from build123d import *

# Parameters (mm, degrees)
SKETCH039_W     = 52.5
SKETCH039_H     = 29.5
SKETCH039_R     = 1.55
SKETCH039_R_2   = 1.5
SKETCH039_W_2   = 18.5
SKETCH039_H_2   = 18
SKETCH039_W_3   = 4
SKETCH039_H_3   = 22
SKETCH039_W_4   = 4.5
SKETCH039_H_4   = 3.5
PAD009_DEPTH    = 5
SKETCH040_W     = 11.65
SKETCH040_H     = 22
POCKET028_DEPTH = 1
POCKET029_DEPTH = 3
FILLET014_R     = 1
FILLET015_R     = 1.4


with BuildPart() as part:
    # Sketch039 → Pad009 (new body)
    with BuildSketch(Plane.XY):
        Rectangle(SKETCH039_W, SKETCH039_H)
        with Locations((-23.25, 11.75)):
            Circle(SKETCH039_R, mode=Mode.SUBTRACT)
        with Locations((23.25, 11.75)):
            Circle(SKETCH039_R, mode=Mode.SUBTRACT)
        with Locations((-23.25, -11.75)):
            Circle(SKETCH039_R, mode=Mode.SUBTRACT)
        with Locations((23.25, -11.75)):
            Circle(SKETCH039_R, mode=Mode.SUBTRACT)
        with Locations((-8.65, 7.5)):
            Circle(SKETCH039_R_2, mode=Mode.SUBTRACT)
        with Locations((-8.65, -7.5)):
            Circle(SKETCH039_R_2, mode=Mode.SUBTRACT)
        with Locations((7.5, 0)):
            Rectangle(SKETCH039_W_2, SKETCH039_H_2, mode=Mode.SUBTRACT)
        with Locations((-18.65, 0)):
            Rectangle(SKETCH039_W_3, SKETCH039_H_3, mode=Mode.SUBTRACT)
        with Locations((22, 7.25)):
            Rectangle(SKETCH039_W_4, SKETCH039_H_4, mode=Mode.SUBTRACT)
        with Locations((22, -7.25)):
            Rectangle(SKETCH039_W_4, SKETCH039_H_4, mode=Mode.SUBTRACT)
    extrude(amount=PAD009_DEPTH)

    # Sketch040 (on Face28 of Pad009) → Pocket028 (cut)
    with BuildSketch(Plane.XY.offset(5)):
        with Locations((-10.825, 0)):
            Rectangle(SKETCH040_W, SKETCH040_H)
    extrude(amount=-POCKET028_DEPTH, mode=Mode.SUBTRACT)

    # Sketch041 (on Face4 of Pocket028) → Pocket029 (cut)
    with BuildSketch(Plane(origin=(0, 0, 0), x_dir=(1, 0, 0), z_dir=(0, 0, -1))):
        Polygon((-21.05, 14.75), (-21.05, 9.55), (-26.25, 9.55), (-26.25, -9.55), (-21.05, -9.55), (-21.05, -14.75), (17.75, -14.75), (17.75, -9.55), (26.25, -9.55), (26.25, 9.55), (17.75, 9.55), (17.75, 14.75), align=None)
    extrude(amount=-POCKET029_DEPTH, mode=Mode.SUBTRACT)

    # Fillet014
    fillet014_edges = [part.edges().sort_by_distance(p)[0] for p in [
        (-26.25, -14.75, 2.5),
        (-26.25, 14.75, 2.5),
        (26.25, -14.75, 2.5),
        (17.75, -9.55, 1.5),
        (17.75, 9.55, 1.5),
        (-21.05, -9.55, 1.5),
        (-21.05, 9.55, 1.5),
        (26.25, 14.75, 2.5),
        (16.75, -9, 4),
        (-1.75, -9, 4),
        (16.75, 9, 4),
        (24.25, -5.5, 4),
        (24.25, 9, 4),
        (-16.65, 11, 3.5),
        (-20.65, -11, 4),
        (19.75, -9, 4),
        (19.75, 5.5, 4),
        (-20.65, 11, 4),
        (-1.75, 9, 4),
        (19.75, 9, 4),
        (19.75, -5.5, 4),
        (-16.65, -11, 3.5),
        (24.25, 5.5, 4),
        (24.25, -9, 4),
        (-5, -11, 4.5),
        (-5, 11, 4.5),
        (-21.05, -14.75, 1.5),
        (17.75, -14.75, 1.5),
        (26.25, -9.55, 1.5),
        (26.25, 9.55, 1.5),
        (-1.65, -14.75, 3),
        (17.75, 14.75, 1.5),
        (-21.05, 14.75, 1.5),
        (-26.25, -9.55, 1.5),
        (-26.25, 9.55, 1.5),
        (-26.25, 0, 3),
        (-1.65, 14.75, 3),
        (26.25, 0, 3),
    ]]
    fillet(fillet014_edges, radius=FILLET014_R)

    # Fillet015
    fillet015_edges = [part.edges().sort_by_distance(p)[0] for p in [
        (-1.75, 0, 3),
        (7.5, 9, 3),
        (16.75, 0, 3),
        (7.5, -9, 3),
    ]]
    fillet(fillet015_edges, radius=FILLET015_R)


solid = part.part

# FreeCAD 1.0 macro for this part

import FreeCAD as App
import Part
import Sketcher

V = App.Vector


def edges_at(feature, points):
    """Names of the edges that pass closest to the given points."""
    edges = feature.Shape.Edges
    near = lambda p: min(range(len(edges)), key=lambda i: edges[i].distToShape(Part.Vertex(*p))[0])
    return sorted({f"Edge{near(p) + 1}" for p in points})


def add_polygon(sketch, points):
    """Adds a closed chain of lines whose ends are joined by coincident constraints."""
    first, n = sketch.GeometryCount, len(points)
    for a, b in zip(points, points[1:] + points[:1]):
        sketch.addGeometry(Part.LineSegment(App.Vector(*a, 0), App.Vector(*b, 0)), False)
    for i in range(n):
        sketch.addConstraint(Sketcher.Constraint("Coincident", first + i, 2, first + (i + 1) % n, 1))

doc = App.newDocument("Part")
body = doc.addObject("PartDesign::Body", "Body")

# Sketch on XY plane
sketch1 = body.newObject("Sketcher::SketchObject", "Sketch")
sketch1.AttachmentSupport = (doc.getObject("XY_Plane"), [""])
sketch1.MapMode = "FlatFace"
add_polygon(sketch1, [(-26.2, 14.8), (-26.2, -14.8), (26.2, -14.8), (26.2, 14.8)])  # lines 0-3
sketch1.addGeometry(Part.Circle(V(-23.2, -11.8, 0), V(0, 0, 1), 1.6), False)  # 4
sketch1.addGeometry(Part.Circle(V(-8.7, -7.5, 0), V(0, 0, 1), 1.5), False)  # 5
sketch1.addGeometry(Part.Circle(V(23.2, -11.8, 0), V(0, 0, 1), 1.6), False)  # 6
add_polygon(sketch1, [(24.2, -9), (19.8, -9), (19.8, -5.5), (24.2, -5.5)])  # lines 7-10
add_polygon(sketch1, [(-16.6, -11), (-20.6, -11), (-20.6, 11), (-16.6, 11)])  # lines 11-14
sketch1.addGeometry(Part.Circle(V(-23.2, 11.8, 0), V(0, 0, 1), 1.6), False)  # 15
sketch1.addGeometry(Part.Circle(V(-8.7, 7.5, 0), V(0, 0, 1), 1.5), False)  # 16
add_polygon(sketch1, [(16.8, -9), (-1.8, -9), (-1.8, 9), (16.8, 9)])  # lines 17-20
add_polygon(sketch1, [(24.2, 5.5), (19.8, 5.5), (19.8, 9), (24.2, 9)])  # lines 21-24
sketch1.addGeometry(Part.Circle(V(23.2, 11.8, 0), V(0, 0, 1), 1.6), False)  # 25
sketch1.addConstraint(Sketcher.Constraint("Vertical", 0))
sketch1.addConstraint(Sketcher.Constraint("Horizontal", 1))
sketch1.addConstraint(Sketcher.Constraint("Vertical", 2))
sketch1.addConstraint(Sketcher.Constraint("Horizontal", 3))
sketch1.addConstraint(Sketcher.Constraint("Horizontal", 7))
sketch1.addConstraint(Sketcher.Constraint("Vertical", 8))
sketch1.addConstraint(Sketcher.Constraint("Horizontal", 9))
sketch1.addConstraint(Sketcher.Constraint("Vertical", 10))
sketch1.addConstraint(Sketcher.Constraint("Horizontal", 11))
sketch1.addConstraint(Sketcher.Constraint("Vertical", 12))
sketch1.addConstraint(Sketcher.Constraint("Horizontal", 13))
sketch1.addConstraint(Sketcher.Constraint("Vertical", 14))
sketch1.addConstraint(Sketcher.Constraint("Horizontal", 17))
sketch1.addConstraint(Sketcher.Constraint("Vertical", 18))
sketch1.addConstraint(Sketcher.Constraint("Horizontal", 19))
sketch1.addConstraint(Sketcher.Constraint("Vertical", 20))
sketch1.addConstraint(Sketcher.Constraint("Horizontal", 21))
sketch1.addConstraint(Sketcher.Constraint("Vertical", 22))
sketch1.addConstraint(Sketcher.Constraint("Horizontal", 23))
sketch1.addConstraint(Sketcher.Constraint("Vertical", 24))
sketch1.addConstraint(Sketcher.Constraint("Equal", 4, 6))
sketch1.addConstraint(Sketcher.Constraint("Equal", 6, 15))
sketch1.addConstraint(Sketcher.Constraint("Equal", 5, 16))
sketch1.addConstraint(Sketcher.Constraint("Equal", 15, 25))
sketch1.addConstraint(Sketcher.Constraint("Symmetric", 6, 3, 15, 3, -1, 1))
sketch1.addConstraint(Sketcher.Constraint("Symmetric", 4, 3, 25, 3, -1, 1))
sketch1.addConstraint(Sketcher.Constraint("Symmetric", 0, 2, 2, 2, -1, 1))
sketch1.addConstraint(Sketcher.Constraint("Symmetric", 4, 3, 6, 3, -2))
sketch1.addConstraint(Sketcher.Constraint("Symmetric", 5, 3, 16, 3, -1))
sketch1.addConstraint(Sketcher.Constraint("Symmetric", 8, 2, 21, 2, -1))
sketch1.addConstraint(Sketcher.Constraint("Symmetric", 10, 2, 23, 2, -1))
sketch1.addConstraint(Sketcher.Constraint("Horizontal", 10, 2, 17, 2))
sketch1.addConstraint(Sketcher.Constraint("Horizontal", 19, 2, 22, 2))
sketch1.addConstraint(Sketcher.Constraint("Diameter", 5, 3.0))
sketch1.addConstraint(Sketcher.Constraint("Diameter", 4, 3.1))
sketch1.addConstraint(Sketcher.Constraint("DistanceX", 11, 2, 11, 1, 4.0))
sketch1.addConstraint(Sketcher.Constraint("DistanceY", 12, 1, 12, 2, 22.0))
sketch1.addConstraint(Sketcher.Constraint("DistanceY", 18, 1, 18, 2, 18.0))
sketch1.addConstraint(Sketcher.Constraint("DistanceX", 1, 1, 1, 2, 52.5))
sketch1.addConstraint(Sketcher.Constraint("DistanceX", 7, 2, 7, 1, 4.5))
sketch1.addConstraint(Sketcher.Constraint("DistanceX", 17, 2, 17, 1, 18.5))
sketch1.addConstraint(Sketcher.Constraint("DistanceY", 0, 2, 0, 1, 29.5))
sketch1.addConstraint(Sketcher.Constraint("DistanceY", 8, 1, 8, 2, 3.5))
sketch1.addConstraint(Sketcher.Constraint("DistanceY", 11, 2, -1, 1, 11.0))
sketch1.addConstraint(Sketcher.Constraint("DistanceY", 5, 3, 16, 3, 15.0))
sketch1.addConstraint(Sketcher.Constraint("DistanceX", 0, 2, 4, 3, 3.0))
sketch1.addConstraint(Sketcher.Constraint("DistanceY", 0, 2, 4, 3, 3.0))
sketch1.addConstraint(Sketcher.Constraint("DistanceX", 6, 3, 9, 2, 1.0))
sketch1.addConstraint(Sketcher.Constraint("DistanceX", 11, 2, 5, 3, 12.0))
sketch1.addConstraint(Sketcher.Constraint("DistanceX", 19, 2, 8, 2, 3.0))
sketch1.addConstraint(Sketcher.Constraint("DistanceX", 4, 3, 5, 3, 14.6))
pad1 = body.newObject("PartDesign::Pad", "Pad")
pad1.Profile = sketch1
pad1.Length = 5

# Sketch on XY plane
sketch2 = body.newObject("Sketcher::SketchObject", "Sketch001")
sketch2.AttachmentSupport = (doc.getObject("XY_Plane"), [""])
sketch2.MapMode = "FlatFace"
sketch2.AttachmentOffset = App.Placement(V(0, 0, 5), App.Rotation())
add_polygon(sketch2, [(-17, 11), (-17, -11), (-5, -11), (-5, 11)])  # lines 0-3
sketch2.addConstraint(Sketcher.Constraint("Vertical", 0))
sketch2.addConstraint(Sketcher.Constraint("Horizontal", 1))
sketch2.addConstraint(Sketcher.Constraint("Vertical", 2))
sketch2.addConstraint(Sketcher.Constraint("Horizontal", 3))
sketch2.addConstraint(Sketcher.Constraint("DistanceY", 0, 2, 0, 1, 22.0))
sketch2.addConstraint(Sketcher.Constraint("DistanceY", 0, 2, -1, 1, 11.0))
sketch2.addConstraint(Sketcher.Constraint("DistanceX", 1, 2, -1, 1, 5.0))
sketch2.addConstraint(Sketcher.Constraint("DistanceX", 1, 1, 1, 2, 11.65))
pocket1 = body.newObject("PartDesign::Pocket", "Pocket")
pocket1.Profile = sketch2
pocket1.Length = 1

# Sketch on XY plane
sketch3 = body.newObject("Sketcher::SketchObject", "Sketch002")
sketch3.AttachmentSupport = (doc.getObject("XY_Plane"), [""])
sketch3.MapMode = "FlatFace"
add_polygon(sketch3, [(-21, -15), (-21, -10), (-26, -10), (-26, 10), (-21, 10), (-21, 15), (18, 15), (18, 10), (26, 10), (26, -10), (18, -10), (18, -15)])  # lines 0-11
sketch3.addConstraint(Sketcher.Constraint("Vertical", 0))
sketch3.addConstraint(Sketcher.Constraint("Horizontal", 1))
sketch3.addConstraint(Sketcher.Constraint("Vertical", 2))
sketch3.addConstraint(Sketcher.Constraint("Horizontal", 3))
sketch3.addConstraint(Sketcher.Constraint("Vertical", 4))
sketch3.addConstraint(Sketcher.Constraint("Horizontal", 5))
sketch3.addConstraint(Sketcher.Constraint("Vertical", 6))
sketch3.addConstraint(Sketcher.Constraint("Horizontal", 7))
sketch3.addConstraint(Sketcher.Constraint("Vertical", 8))
sketch3.addConstraint(Sketcher.Constraint("Horizontal", 9))
sketch3.addConstraint(Sketcher.Constraint("Vertical", 10))
sketch3.addConstraint(Sketcher.Constraint("Horizontal", 11))
sketch3.addConstraint(Sketcher.Constraint("Symmetric", 1, 2, 7, 2, -1, 1))
sketch3.addConstraint(Sketcher.Constraint("Symmetric", 0, 2, 3, 2, -1))
sketch3.addConstraint(Sketcher.Constraint("Symmetric", 6, 2, 9, 2, -1))
sketch3.addConstraint(Sketcher.Constraint("Equal", 3, 0))
sketch3.addConstraint(Sketcher.Constraint("Equal", 0, 4))
sketch3.addConstraint(Sketcher.Constraint("DistanceX", 1, 2, 1, 1, 5.2))
sketch3.addConstraint(Sketcher.Constraint("DistanceX", 5, 1, 5, 2, 38.8))
sketch3.addConstraint(Sketcher.Constraint("DistanceX", 7, 1, 7, 2, 8.5))
sketch3.addConstraint(Sketcher.Constraint("DistanceY", 2, 1, 2, 2, 19.1))
pocket2 = body.newObject("PartDesign::Pocket", "Pocket001")
pocket2.Profile = sketch3
pocket2.Length = 3
pocket2.Reversed = True
doc.recompute()

fillet = body.newObject("PartDesign::Fillet", "Fillet")
fillet.Base = (pocket2, edges_at(pocket2, [
    (-26.25, -14.75, 2.5),
    (-26.25, 14.75, 2.5),
    (26.25, -14.75, 2.5),
    (17.75, -9.55, 1.5),
    (17.75, 9.55, 1.5),
    (-21.05, -9.55, 1.5),
    (-21.05, 9.55, 1.5),
    (26.25, 14.75, 2.5),
    (16.75, -9, 4),
    (-1.75, -9, 4),
    (16.75, 9, 4),
    (24.25, -5.5, 4),
    (24.25, 9, 4),
    (-16.65, 11, 3.5),
    (-20.65, -11, 4),
    (19.75, -9, 4),
    (19.75, 5.5, 4),
    (-20.65, 11, 4),
    (-1.75, 9, 4),
    (19.75, 9, 4),
    (19.75, -5.5, 4),
    (-16.65, -11, 3.5),
    (24.25, 5.5, 4),
    (24.25, -9, 4),
    (-5, -11, 4.5),
    (-5, 11, 4.5),
    (-21.05, -14.75, 1.5),
    (17.75, -14.75, 1.5),
    (26.25, -9.55, 1.5),
    (26.25, 9.55, 1.5),
    (-1.65, -14.75, 3),
    (17.75, 14.75, 1.5),
    (-21.05, 14.75, 1.5),
    (-26.25, -9.55, 1.5),
    (-26.25, 9.55, 1.5),
    (-26.25, 0, 3),
    (-1.65, 14.75, 3),
    (26.25, 0, 3),
]))
fillet.Radius = 1
doc.recompute()

fillet2 = body.newObject("PartDesign::Fillet", "Fillet001")
fillet2.Base = (fillet, edges_at(fillet, [
    (-1.75, 0, 3),
    (7.5, 9, 3),
    (16.75, 0, 3),
    (7.5, -9, 3),
]))
fillet2.Radius = 1.4

doc.recompute()
